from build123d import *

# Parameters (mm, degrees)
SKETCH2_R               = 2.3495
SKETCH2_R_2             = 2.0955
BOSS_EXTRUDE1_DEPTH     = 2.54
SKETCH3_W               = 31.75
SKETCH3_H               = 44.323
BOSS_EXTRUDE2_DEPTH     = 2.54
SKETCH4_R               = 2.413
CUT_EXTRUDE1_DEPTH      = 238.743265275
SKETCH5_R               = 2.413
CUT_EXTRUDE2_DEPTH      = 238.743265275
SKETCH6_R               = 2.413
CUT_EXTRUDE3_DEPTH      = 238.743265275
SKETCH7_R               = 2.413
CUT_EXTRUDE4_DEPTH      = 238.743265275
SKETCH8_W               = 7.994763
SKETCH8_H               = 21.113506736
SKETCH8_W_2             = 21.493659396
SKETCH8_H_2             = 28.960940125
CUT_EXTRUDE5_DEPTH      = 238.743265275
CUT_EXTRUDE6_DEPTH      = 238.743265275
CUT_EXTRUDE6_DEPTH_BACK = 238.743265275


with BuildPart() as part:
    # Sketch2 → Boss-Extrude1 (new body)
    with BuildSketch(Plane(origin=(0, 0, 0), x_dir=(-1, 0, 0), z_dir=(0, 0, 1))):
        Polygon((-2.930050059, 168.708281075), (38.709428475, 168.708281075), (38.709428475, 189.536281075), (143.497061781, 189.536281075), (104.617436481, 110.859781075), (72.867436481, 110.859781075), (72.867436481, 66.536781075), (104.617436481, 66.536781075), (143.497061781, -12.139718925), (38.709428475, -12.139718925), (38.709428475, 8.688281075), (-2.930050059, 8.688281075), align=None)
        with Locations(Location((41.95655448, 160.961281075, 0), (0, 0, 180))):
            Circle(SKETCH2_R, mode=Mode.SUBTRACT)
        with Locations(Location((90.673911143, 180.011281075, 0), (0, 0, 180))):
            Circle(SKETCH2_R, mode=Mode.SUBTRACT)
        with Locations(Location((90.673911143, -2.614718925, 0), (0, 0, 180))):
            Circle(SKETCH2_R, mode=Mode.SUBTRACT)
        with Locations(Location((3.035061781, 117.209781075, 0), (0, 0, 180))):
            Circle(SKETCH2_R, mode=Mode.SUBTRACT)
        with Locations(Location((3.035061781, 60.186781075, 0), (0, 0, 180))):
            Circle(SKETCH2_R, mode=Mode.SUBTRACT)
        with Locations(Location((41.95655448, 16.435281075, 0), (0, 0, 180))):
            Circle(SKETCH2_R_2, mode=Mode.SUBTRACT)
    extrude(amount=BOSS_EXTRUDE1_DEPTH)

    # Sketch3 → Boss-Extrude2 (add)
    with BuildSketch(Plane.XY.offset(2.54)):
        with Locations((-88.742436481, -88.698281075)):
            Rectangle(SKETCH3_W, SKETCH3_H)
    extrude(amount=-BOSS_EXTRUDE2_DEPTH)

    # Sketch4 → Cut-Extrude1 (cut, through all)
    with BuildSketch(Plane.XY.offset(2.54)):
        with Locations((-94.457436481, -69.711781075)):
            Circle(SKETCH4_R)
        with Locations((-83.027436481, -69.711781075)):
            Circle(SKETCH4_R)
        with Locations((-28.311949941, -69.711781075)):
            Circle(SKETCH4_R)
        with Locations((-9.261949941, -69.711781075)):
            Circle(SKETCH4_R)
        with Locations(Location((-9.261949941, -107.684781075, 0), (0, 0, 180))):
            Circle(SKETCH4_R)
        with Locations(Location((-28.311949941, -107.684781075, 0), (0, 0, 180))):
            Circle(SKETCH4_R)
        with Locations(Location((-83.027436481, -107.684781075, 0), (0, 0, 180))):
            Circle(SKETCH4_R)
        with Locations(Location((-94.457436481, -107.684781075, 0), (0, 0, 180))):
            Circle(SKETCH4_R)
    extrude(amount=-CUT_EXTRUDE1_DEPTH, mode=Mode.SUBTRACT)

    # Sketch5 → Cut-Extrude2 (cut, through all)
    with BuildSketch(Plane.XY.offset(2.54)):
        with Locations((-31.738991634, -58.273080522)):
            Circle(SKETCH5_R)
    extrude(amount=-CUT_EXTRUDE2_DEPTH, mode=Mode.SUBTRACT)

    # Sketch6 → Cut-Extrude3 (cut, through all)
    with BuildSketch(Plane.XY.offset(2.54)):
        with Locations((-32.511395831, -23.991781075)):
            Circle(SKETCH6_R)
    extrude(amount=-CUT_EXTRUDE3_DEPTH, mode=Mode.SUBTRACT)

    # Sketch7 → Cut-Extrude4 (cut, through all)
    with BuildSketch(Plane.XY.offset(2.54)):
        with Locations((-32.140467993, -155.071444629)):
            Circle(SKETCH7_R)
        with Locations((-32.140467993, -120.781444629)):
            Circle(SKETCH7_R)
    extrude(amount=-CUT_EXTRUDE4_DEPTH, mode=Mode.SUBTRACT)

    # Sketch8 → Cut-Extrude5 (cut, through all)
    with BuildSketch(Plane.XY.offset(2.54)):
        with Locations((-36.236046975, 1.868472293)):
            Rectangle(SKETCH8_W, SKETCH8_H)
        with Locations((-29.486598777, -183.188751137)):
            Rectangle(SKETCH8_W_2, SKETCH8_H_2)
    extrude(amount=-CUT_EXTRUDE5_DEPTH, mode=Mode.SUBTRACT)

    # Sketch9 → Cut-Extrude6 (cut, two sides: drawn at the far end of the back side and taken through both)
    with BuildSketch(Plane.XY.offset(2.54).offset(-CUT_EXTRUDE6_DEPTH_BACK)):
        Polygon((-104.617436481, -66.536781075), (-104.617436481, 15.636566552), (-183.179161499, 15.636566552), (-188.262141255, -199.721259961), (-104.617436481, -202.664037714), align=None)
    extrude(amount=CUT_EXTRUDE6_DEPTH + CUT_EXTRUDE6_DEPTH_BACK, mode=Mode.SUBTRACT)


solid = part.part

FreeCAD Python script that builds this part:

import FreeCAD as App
import Part
import Sketcher
from FreeCAD import Vector
Q = App.Units.Quantity


def add_polygon(sketch, points):
    """Adds a closed chain of lines whose ends are joined by coincident constraints."""
    first, n = sketch.GeometryCount, len(points)
    for a, b in zip(points, points[1:] + points[:1]):
        sketch.addGeometry(Part.LineSegment(App.Vector(*a, 0), App.Vector(*b, 0)), False)
    for i in range(n):
        sketch.addConstraint(Sketcher.Constraint("Coincident", first + i, 2, first + (i + 1) % n, 1))

doc = App.newDocument("Part")
params = doc.addObject("Spreadsheet::Sheet", "Params")
for row, (alias, value) in enumerate([
    ("sketch1_diameter", "0.185 in"),
    ("sketch1_diameter2", "0.165 in"),
    ("sketch1_height", "6.3 in"),
    ("sketch1_width", "1.25 in"),
    ("sketch1_height2", "0.82 in"),
    ("pad1_length", "0.1 in"),
    ("sketch2_width", "1.25 in"),
    ("sketch2_height", "1.745 in"),
    ("pad2_length", "0.1 in"),
    ("sketch3_diameter", "0.19 in"),
    ("sketch4_diameter", "0.19 in"),
    ("sketch5_diameter", "0.19 in"),
    ("sketch6_diameter", "0.19 in"),
], start=1):
    params.set(f"A{row}", alias)
    params.set(f"B{row}", "=" + value)
    params.setAlias(f"B{row}", alias)

body = doc.addObject("PartDesign::Body", "Body")

# Sketch on XY plane
sketch1 = doc.addObject("Sketcher::SketchObject", "Sketch")
body.addObject(sketch1)
sketch1.AttachmentSupport = (doc.XY_Plane, [""])
sketch1.MapMode = "FlatFace"
add_polygon(sketch1, [(-38.7, -168.7), (2.9, -168.7), (2.9, -8.7), (-38.7, -8.7), (-38.7, 12.1), (-143.5, 12.1), (-104.6, -66.5), (-72.9, -66.5), (-72.9, -110.9), (-104.6, -110.9), (-143.5, -189.5), (-38.7, -189.5)])  # lines 0-11
sketch1.addGeometry(Part.Circle(Vector(-90.7, 2.6, 0), Vector(0, 0, 1), 2.3), False)  # 12
sketch1.addGeometry(Part.Circle(Vector(-42, -16.4, 0), Vector(0, 0, 1), 2.1), False)  # 13
sketch1.addGeometry(Part.Circle(Vector(-3, -60.2, 0), Vector(0, 0, 1), 2.3), False)  # 14
sketch1.addGeometry(Part.Circle(Vector(-90.7, -180, 0), Vector(0, 0, 1), 2.3), False)  # 15
sketch1.addGeometry(Part.Circle(Vector(-3, -117.2, 0), Vector(0, 0, 1), 2.3), False)  # 16
sketch1.addGeometry(Part.Circle(Vector(-42, -161, 0), Vector(0, 0, 1), 2.3), False)  # 17
sketch1.addConstraint([
    Sketcher.Constraint("Horizontal", 0),
    Sketcher.Constraint("Vertical", 1),
    Sketcher.Constraint("Horizontal", 2),
    Sketcher.Constraint("Vertical", 3),
    Sketcher.Constraint("Horizontal", 4),
    Sketcher.Constraint("Horizontal", 6),
    Sketcher.Constraint("Vertical", 7),
    Sketcher.Constraint("Horizontal", 8),
    Sketcher.Constraint("Horizontal", 10),
    Sketcher.Constraint("Vertical", 11),
    Sketcher.Constraint("Equal", 12, 14),
    Sketcher.Constraint("Equal", 14, 15),
    Sketcher.Constraint("Equal", 15, 16),
    Sketcher.Constraint("Equal", 16, 17),
    Sketcher.Constraint("Vertical", 12, 3, 15, 3),
    Sketcher.Constraint("Vertical", 14, 3, 16, 3),
    Sketcher.Constraint("Vertical", 13, 3, 17, 3),
    Sketcher.Constraint("Vertical", 5, 2, 8, 2),
    Sketcher.Constraint("Vertical", 4, 2, 9, 2),
    Sketcher.Constraint("Vertical", 3, 2, 10, 2),
    Sketcher.Constraint("Equal", 3, 11),
    Sketcher.Constraint("Equal", 5, 9),
    Sketcher.Constraint("Diameter", 12, Q("0.185 in")),
    Sketcher.Constraint("Diameter", 13, Q("0.165 in")),
    Sketcher.Constraint("DistanceY", 1, 1, 1, 2, Q("6.3 in")),
    Sketcher.Constraint("DistanceX", 6, 1, 6, 2, Q("1.25 in")),
    Sketcher.Constraint("DistanceY", 3, 1, 3, 2, Q("0.82 in")),
    Sketcher.Constraint("DistanceY", 7, 2, 7, 1, Q("1.745 in")),
    Sketcher.Constraint("DistanceY", 13, 3, 12, 3, Q("0.75 in")),
    Sketcher.Constraint("DistanceY", 15, 3, 13, 3, Q("6.44 in")),
    Sketcher.Constraint("DistanceY", 15, 3, 17, 3, Q("0.75 in")),
    Sketcher.Constraint("DistanceY", 5, 2, 14, 3, Q("0.25 in")),
    Sketcher.Constraint("DistanceY", 16, 3, 7, 2, Q("0.25 in")),
    Sketcher.Constraint("DistanceY", 0, 2, 17, 3, Q("0.305 in")),
    Sketcher.Constraint("DistanceX", 0, 1, 0, 2, 41.639479),
    Sketcher.Constraint("DistanceX", 4, 2, 4, 1, 104.787633),
    Sketcher.Constraint("DistanceX", 12, 3, -1, 1, 90.673911),
    Sketcher.Constraint("DistanceY", -1, 1, 12, 3, 2.614719),
    Sketcher.Constraint("DistanceX", 14, 3, -1, 1, 3.035062),
    Sketcher.Constraint("DistanceX", -1, 1, 0, 2, 2.93005),
    Sketcher.Constraint("DistanceX", 5, 2, 2, 2, 65.908008),
    Sketcher.Constraint("DistanceX", 13, 3, -1, 1, 41.956554),
])
sketch1.setExpression("Constraints[34]", "Params.sketch1_diameter")
sketch1.setExpression("Constraints[35]", "Params.sketch1_diameter2")
sketch1.setExpression("Constraints[36]", "Params.sketch1_height")
sketch1.setExpression("Constraints[37]", "Params.sketch1_width")
sketch1.setExpression("Constraints[38]", "Params.sketch1_height2")
pad1 = doc.addObject("PartDesign::Pad", "Pad")
body.addObject(pad1)
pad1.Profile = sketch1
pad1.setExpression("Length", "Params.pad1_length")

# Sketch on XY plane
sketch2 = doc.addObject("Sketcher::SketchObject", "Sketch001")
body.addObject(sketch2)
sketch2.AttachmentSupport = (doc.XY_Plane, [""])
sketch2.MapMode = "FlatFace"
sketch2.AttachmentOffset = App.Placement(Vector(0, 0, 0.1 * 25.4), App.Rotation())
add_polygon(sketch2, [(-105, -67), (-105, -111), (-73, -111), (-73, -67)])  # lines 0-3
sketch2.addConstraint([
    Sketcher.Constraint("Vertical", 0),
    Sketcher.Constraint("Horizontal", 1),
    Sketcher.Constraint("Vertical", 2),
    Sketcher.Constraint("Horizontal", 3),
    Sketcher.Constraint("DistanceX", 1, 1, 1, 2, Q("1.25 in")),
    Sketcher.Constraint("DistanceY", 0, 2, 0, 1, Q("1.745 in")),
    Sketcher.Constraint("DistanceY", 0, 2, -1, 1, 110.859781),
    Sketcher.Constraint("DistanceX", 0, 2, -1, 1, 104.617436),
])
sketch2.setExpression("Constraints[8]", "Params.sketch2_width")
sketch2.setExpression("Constraints[9]", "Params.sketch2_height")
pad2 = doc.addObject("PartDesign::Pad", "Pad001")
body.addObject(pad2)
pad2.Profile = sketch2
pad2.setExpression("Length", "Params.pad2_length")
pad2.Reversed = True

# Sketch on XY plane
sketch3 = doc.addObject("Sketcher::SketchObject", "Sketch002")
body.addObject(sketch3)
sketch3.AttachmentSupport = (doc.XY_Plane, [""])
sketch3.MapMode = "FlatFace"
sketch3.AttachmentOffset = App.Placement(Vector(0, 0, 0.1 * 25.4), App.Rotation())
sketch3.addGeometry([
    Part.Circle(Vector(-94.5, -69.7, 0), Vector(0, 0, 1), 2.4),  # 0
    Part.Circle(Vector(-83, -69.7, 0), Vector(0, 0, 1), 2.4),  # 1
    Part.Circle(Vector(-28.3, -69.7, 0), Vector(0, 0, 1), 2.4),  # 2
    Part.Circle(Vector(-9.3, -69.7, 0), Vector(0, 0, 1), 2.4),  # 3
    Part.Circle(Vector(-9.3, -107.7, 0), Vector(0, 0, 1), 2.4),  # 4
    Part.Circle(Vector(-28.3, -107.7, 0), Vector(0, 0, 1), 2.4),  # 5
    Part.Circle(Vector(-83, -107.7, 0), Vector(0, 0, 1), 2.4),  # 6
    Part.Circle(Vector(-94.5, -107.7, 0), Vector(0, 0, 1), 2.4),  # 7
], False)
sketch3.addConstraint([
    Sketcher.Constraint("Equal", 0, 1),
    Sketcher.Constraint("Equal", 1, 2),
    Sketcher.Constraint("Equal", 2, 3),
    Sketcher.Constraint("Equal", 3, 4),
    Sketcher.Constraint("Equal", 4, 5),
    Sketcher.Constraint("Equal", 5, 6),
    Sketcher.Constraint("Equal", 6, 7),
    Sketcher.Constraint("Horizontal", 0, 3, 1, 3),
    Sketcher.Constraint("Horizontal", 1, 3, 2, 3),
    Sketcher.Constraint("Horizontal", 2, 3, 3, 3),
    Sketcher.Constraint("Horizontal", 4, 3, 5, 3),
    Sketcher.Constraint("Horizontal", 5, 3, 6, 3),
    Sketcher.Constraint("Horizontal", 6, 3, 7, 3),
    Sketcher.Constraint("Vertical", 3, 3, 4, 3),
    Sketcher.Constraint("Vertical", 2, 3, 5, 3),
    Sketcher.Constraint("Vertical", 1, 3, 6, 3),
    Sketcher.Constraint("Vertical", 0, 3, 7, 3),
    Sketcher.Constraint("Diameter", 0, Q("0.19 in")),
    Sketcher.Constraint("DistanceX", 0, 3, 1, 3, Q("0.45 in")),
    Sketcher.Constraint("DistanceX", 2, 3, 3, 3, Q("0.75 in")),
    Sketcher.Constraint("DistanceY", 4, 3, 3, 3, Q("1.495 in")),
    Sketcher.Constraint("DistanceY", 0, 3, -1, 1, 69.711781),
    Sketcher.Constraint("DistanceX", 2, 3, -1, 1, 28.31195),
    Sketcher.Constraint("DistanceX", 0, 3, -1, 1, 94.457436),
])
sketch3.setExpression("Constraints[17]", "Params.sketch3_diameter")
pocket1 = doc.addObject("PartDesign::Pocket", "Pocket")
body.addObject(pocket1)
pocket1.Profile = sketch3
pocket1.Type = "ThroughAll"

# Sketch on XY plane
sketch4 = doc.addObject("Sketcher::SketchObject", "Sketch003")
body.addObject(sketch4)
sketch4.AttachmentSupport = (doc.XY_Plane, [""])
sketch4.MapMode = "FlatFace"
sketch4.AttachmentOffset = App.Placement(Vector(0, 0, 0.1 * 25.4), App.Rotation())
sketch4.addGeometry(Part.Circle(Vector(-31.7, -58.3, 0), Vector(0, 0, 1), 2.4), False)
sketch4.addConstraint([
    Sketcher.Constraint("Diameter", 0, Q("0.19 in")),
    Sketcher.Constraint("DistanceX", 0, 3, -1, 1, 31.738992),
    Sketcher.Constraint("DistanceY", 0, 3, -1, 1, 58.273081),
])
sketch4.setExpression("Constraints[0]", "Params.sketch4_diameter")
pocket2 = doc.addObject("PartDesign::Pocket", "Pocket001")
body.addObject(pocket2)
pocket2.Profile = sketch4
pocket2.Type = "ThroughAll"

# Sketch on XY plane
sketch5 = doc.addObject("Sketcher::SketchObject", "Sketch004")
body.addObject(sketch5)
sketch5.AttachmentSupport = (doc.XY_Plane, [""])
sketch5.MapMode = "FlatFace"
sketch5.AttachmentOffset = App.Placement(Vector(0, 0, 0.1 * 25.4), App.Rotation())
sketch5.addGeometry(Part.Circle(Vector(-32.5, -24, 0), Vector(0, 0, 1), 2.4), False)
sketch5.addConstraint([
    Sketcher.Constraint("Diameter", 0, Q("0.19 in")),
    Sketcher.Constraint("DistanceY", 0, 3, -1, 1, 23.991781),
    Sketcher.Constraint("DistanceX", 0, 3, -1, 1, 32.511396),
])
sketch5.setExpression("Constraints[0]", "Params.sketch5_diameter")
pocket3 = doc.addObject("PartDesign::Pocket", "Pocket002")
body.addObject(pocket3)
pocket3.Profile = sketch5
pocket3.Type = "ThroughAll"

# Sketch on XY plane
sketch6 = doc.addObject("Sketcher::SketchObject", "Sketch005")
body.addObject(sketch6)
sketch6.AttachmentSupport = (doc.XY_Plane, [""])
sketch6.MapMode = "FlatFace"
sketch6.AttachmentOffset = App.Placement(Vector(0, 0, 0.1 * 25.4), App.Rotation())
sketch6.addGeometry([
    Part.Circle(Vector(-32.1, -155.1, 0), Vector(0, 0, 1), 2.4),
    Part.Circle(Vector(-32.1, -120.8, 0), Vector(0, 0, 1), 2.4),
], False)
sketch6.addConstraint([
    Sketcher.Constraint("Equal", 0, 1),
    Sketcher.Constraint("Vertical", 0, 3, 1, 3),
    Sketcher.Constraint("Diameter", 0, Q("0.19 in")),
    Sketcher.Constraint("DistanceY", 0, 3, 1, 3, Q("1.35 in")),
    Sketcher.Constraint("DistanceX", 0, 3, -1, 1, 32.140468),
    Sketcher.Constraint("DistanceY", 0, 3, -1, 1, 155.071445),
])
sketch6.setExpression("Constraints[2]", "Params.sketch6_diameter")
pocket4 = doc.addObject("PartDesign::Pocket", "Pocket003")
body.addObject(pocket4)
pocket4.Profile = sketch6
pocket4.Type = "ThroughAll"

# Sketch on XY plane
sketch7 = doc.addObject("Sketcher::SketchObject", "Sketch006")
body.addObject(sketch7)
sketch7.AttachmentSupport = (doc.XY_Plane, [""])
sketch7.MapMode = "FlatFace"
sketch7.AttachmentOffset = App.Placement(Vector(0, 0, 0.1 * 25.4), App.Rotation())
add_polygon(sketch7, [(-40, 12), (-40, -9), (-32, -9), (-32, 12)])  # lines 0-3
add_polygon(sketch7, [(-40, -169), (-40, -198), (-19, -198), (-19, -169)])  # lines 4-7
sketch7.addConstraint([
    Sketcher.Constraint("Vertical", 0),
    Sketcher.Constraint("Horizontal", 1),
    Sketcher.Constraint("Vertical", 2),
    Sketcher.Constraint("Horizontal", 3),
    Sketcher.Constraint("Vertical", 4),
    Sketcher.Constraint("Horizontal", 5),
    Sketcher.Constraint("Vertical", 6),
    Sketcher.Constraint("Horizontal", 7),
    Sketcher.Constraint("Vertical", 3, 2, 4, 2),
    Sketcher.Constraint("DistanceY", 6, 2, 1, 2, Q("6.3 in")),
    Sketcher.Constraint("DistanceX", 5, 1, 5, 2, 21.493659),
    Sketcher.Constraint("DistanceY", 4, 2, 4, 1, 28.96094),
    Sketcher.Constraint("DistanceX", 1, 1, 1, 2, 7.994763),
    Sketcher.Constraint("DistanceY", 0, 2, 0, 1, 21.113507),
    Sketcher.Constraint("DistanceX", 0, 2, -1, 1, 40.233428),
    Sketcher.Constraint("DistanceY", 0, 2, -1, 1, 8.688281),
])
pocket5 = doc.addObject("PartDesign::Pocket", "Pocket004")
body.addObject(pocket5)
pocket5.Profile = sketch7
pocket5.Type = "ThroughAll"

# Sketch on XY plane
sketch8 = doc.addObject("Sketcher::SketchObject", "Sketch007")
body.addObject(sketch8)
sketch8.AttachmentSupport = (doc.XY_Plane, [""])
sketch8.MapMode = "FlatFace"
sketch8.AttachmentOffset = App.Placement(Vector(0, 0, 0.1 * 25.4), App.Rotation())
add_polygon(sketch8, [(-105, 16), (-183, 16), (-188, -200), (-105, -203)])  # lines 0-3
sketch8.addConstraint([
    Sketcher.Constraint("Horizontal", 0),
    Sketcher.Constraint("Vertical", 3),
    Sketcher.Constraint("DistanceX", 0, 2, 0, 1, 78.561725),
    Sketcher.Constraint("DistanceY", 3, 1, 3, 2, 218.300604),
    Sketcher.Constraint("DistanceX", 0, 2, -1, 1, 183.179161),
    Sketcher.Constraint("DistanceX", 1, 2, -1, 1, 188.262141),
    Sketcher.Constraint("DistanceY", 1, 2, -1, 1, 199.72126),
    Sketcher.Constraint("Distance", 1, 215.417804),
])
pocket6 = doc.addObject("PartDesign::Pocket", "Pocket005")
body.addObject(pocket6)
pocket6.Profile = sketch8
pocket6.Type = "ThroughAll"
pocket6.Midplane = True

doc.recompute()
